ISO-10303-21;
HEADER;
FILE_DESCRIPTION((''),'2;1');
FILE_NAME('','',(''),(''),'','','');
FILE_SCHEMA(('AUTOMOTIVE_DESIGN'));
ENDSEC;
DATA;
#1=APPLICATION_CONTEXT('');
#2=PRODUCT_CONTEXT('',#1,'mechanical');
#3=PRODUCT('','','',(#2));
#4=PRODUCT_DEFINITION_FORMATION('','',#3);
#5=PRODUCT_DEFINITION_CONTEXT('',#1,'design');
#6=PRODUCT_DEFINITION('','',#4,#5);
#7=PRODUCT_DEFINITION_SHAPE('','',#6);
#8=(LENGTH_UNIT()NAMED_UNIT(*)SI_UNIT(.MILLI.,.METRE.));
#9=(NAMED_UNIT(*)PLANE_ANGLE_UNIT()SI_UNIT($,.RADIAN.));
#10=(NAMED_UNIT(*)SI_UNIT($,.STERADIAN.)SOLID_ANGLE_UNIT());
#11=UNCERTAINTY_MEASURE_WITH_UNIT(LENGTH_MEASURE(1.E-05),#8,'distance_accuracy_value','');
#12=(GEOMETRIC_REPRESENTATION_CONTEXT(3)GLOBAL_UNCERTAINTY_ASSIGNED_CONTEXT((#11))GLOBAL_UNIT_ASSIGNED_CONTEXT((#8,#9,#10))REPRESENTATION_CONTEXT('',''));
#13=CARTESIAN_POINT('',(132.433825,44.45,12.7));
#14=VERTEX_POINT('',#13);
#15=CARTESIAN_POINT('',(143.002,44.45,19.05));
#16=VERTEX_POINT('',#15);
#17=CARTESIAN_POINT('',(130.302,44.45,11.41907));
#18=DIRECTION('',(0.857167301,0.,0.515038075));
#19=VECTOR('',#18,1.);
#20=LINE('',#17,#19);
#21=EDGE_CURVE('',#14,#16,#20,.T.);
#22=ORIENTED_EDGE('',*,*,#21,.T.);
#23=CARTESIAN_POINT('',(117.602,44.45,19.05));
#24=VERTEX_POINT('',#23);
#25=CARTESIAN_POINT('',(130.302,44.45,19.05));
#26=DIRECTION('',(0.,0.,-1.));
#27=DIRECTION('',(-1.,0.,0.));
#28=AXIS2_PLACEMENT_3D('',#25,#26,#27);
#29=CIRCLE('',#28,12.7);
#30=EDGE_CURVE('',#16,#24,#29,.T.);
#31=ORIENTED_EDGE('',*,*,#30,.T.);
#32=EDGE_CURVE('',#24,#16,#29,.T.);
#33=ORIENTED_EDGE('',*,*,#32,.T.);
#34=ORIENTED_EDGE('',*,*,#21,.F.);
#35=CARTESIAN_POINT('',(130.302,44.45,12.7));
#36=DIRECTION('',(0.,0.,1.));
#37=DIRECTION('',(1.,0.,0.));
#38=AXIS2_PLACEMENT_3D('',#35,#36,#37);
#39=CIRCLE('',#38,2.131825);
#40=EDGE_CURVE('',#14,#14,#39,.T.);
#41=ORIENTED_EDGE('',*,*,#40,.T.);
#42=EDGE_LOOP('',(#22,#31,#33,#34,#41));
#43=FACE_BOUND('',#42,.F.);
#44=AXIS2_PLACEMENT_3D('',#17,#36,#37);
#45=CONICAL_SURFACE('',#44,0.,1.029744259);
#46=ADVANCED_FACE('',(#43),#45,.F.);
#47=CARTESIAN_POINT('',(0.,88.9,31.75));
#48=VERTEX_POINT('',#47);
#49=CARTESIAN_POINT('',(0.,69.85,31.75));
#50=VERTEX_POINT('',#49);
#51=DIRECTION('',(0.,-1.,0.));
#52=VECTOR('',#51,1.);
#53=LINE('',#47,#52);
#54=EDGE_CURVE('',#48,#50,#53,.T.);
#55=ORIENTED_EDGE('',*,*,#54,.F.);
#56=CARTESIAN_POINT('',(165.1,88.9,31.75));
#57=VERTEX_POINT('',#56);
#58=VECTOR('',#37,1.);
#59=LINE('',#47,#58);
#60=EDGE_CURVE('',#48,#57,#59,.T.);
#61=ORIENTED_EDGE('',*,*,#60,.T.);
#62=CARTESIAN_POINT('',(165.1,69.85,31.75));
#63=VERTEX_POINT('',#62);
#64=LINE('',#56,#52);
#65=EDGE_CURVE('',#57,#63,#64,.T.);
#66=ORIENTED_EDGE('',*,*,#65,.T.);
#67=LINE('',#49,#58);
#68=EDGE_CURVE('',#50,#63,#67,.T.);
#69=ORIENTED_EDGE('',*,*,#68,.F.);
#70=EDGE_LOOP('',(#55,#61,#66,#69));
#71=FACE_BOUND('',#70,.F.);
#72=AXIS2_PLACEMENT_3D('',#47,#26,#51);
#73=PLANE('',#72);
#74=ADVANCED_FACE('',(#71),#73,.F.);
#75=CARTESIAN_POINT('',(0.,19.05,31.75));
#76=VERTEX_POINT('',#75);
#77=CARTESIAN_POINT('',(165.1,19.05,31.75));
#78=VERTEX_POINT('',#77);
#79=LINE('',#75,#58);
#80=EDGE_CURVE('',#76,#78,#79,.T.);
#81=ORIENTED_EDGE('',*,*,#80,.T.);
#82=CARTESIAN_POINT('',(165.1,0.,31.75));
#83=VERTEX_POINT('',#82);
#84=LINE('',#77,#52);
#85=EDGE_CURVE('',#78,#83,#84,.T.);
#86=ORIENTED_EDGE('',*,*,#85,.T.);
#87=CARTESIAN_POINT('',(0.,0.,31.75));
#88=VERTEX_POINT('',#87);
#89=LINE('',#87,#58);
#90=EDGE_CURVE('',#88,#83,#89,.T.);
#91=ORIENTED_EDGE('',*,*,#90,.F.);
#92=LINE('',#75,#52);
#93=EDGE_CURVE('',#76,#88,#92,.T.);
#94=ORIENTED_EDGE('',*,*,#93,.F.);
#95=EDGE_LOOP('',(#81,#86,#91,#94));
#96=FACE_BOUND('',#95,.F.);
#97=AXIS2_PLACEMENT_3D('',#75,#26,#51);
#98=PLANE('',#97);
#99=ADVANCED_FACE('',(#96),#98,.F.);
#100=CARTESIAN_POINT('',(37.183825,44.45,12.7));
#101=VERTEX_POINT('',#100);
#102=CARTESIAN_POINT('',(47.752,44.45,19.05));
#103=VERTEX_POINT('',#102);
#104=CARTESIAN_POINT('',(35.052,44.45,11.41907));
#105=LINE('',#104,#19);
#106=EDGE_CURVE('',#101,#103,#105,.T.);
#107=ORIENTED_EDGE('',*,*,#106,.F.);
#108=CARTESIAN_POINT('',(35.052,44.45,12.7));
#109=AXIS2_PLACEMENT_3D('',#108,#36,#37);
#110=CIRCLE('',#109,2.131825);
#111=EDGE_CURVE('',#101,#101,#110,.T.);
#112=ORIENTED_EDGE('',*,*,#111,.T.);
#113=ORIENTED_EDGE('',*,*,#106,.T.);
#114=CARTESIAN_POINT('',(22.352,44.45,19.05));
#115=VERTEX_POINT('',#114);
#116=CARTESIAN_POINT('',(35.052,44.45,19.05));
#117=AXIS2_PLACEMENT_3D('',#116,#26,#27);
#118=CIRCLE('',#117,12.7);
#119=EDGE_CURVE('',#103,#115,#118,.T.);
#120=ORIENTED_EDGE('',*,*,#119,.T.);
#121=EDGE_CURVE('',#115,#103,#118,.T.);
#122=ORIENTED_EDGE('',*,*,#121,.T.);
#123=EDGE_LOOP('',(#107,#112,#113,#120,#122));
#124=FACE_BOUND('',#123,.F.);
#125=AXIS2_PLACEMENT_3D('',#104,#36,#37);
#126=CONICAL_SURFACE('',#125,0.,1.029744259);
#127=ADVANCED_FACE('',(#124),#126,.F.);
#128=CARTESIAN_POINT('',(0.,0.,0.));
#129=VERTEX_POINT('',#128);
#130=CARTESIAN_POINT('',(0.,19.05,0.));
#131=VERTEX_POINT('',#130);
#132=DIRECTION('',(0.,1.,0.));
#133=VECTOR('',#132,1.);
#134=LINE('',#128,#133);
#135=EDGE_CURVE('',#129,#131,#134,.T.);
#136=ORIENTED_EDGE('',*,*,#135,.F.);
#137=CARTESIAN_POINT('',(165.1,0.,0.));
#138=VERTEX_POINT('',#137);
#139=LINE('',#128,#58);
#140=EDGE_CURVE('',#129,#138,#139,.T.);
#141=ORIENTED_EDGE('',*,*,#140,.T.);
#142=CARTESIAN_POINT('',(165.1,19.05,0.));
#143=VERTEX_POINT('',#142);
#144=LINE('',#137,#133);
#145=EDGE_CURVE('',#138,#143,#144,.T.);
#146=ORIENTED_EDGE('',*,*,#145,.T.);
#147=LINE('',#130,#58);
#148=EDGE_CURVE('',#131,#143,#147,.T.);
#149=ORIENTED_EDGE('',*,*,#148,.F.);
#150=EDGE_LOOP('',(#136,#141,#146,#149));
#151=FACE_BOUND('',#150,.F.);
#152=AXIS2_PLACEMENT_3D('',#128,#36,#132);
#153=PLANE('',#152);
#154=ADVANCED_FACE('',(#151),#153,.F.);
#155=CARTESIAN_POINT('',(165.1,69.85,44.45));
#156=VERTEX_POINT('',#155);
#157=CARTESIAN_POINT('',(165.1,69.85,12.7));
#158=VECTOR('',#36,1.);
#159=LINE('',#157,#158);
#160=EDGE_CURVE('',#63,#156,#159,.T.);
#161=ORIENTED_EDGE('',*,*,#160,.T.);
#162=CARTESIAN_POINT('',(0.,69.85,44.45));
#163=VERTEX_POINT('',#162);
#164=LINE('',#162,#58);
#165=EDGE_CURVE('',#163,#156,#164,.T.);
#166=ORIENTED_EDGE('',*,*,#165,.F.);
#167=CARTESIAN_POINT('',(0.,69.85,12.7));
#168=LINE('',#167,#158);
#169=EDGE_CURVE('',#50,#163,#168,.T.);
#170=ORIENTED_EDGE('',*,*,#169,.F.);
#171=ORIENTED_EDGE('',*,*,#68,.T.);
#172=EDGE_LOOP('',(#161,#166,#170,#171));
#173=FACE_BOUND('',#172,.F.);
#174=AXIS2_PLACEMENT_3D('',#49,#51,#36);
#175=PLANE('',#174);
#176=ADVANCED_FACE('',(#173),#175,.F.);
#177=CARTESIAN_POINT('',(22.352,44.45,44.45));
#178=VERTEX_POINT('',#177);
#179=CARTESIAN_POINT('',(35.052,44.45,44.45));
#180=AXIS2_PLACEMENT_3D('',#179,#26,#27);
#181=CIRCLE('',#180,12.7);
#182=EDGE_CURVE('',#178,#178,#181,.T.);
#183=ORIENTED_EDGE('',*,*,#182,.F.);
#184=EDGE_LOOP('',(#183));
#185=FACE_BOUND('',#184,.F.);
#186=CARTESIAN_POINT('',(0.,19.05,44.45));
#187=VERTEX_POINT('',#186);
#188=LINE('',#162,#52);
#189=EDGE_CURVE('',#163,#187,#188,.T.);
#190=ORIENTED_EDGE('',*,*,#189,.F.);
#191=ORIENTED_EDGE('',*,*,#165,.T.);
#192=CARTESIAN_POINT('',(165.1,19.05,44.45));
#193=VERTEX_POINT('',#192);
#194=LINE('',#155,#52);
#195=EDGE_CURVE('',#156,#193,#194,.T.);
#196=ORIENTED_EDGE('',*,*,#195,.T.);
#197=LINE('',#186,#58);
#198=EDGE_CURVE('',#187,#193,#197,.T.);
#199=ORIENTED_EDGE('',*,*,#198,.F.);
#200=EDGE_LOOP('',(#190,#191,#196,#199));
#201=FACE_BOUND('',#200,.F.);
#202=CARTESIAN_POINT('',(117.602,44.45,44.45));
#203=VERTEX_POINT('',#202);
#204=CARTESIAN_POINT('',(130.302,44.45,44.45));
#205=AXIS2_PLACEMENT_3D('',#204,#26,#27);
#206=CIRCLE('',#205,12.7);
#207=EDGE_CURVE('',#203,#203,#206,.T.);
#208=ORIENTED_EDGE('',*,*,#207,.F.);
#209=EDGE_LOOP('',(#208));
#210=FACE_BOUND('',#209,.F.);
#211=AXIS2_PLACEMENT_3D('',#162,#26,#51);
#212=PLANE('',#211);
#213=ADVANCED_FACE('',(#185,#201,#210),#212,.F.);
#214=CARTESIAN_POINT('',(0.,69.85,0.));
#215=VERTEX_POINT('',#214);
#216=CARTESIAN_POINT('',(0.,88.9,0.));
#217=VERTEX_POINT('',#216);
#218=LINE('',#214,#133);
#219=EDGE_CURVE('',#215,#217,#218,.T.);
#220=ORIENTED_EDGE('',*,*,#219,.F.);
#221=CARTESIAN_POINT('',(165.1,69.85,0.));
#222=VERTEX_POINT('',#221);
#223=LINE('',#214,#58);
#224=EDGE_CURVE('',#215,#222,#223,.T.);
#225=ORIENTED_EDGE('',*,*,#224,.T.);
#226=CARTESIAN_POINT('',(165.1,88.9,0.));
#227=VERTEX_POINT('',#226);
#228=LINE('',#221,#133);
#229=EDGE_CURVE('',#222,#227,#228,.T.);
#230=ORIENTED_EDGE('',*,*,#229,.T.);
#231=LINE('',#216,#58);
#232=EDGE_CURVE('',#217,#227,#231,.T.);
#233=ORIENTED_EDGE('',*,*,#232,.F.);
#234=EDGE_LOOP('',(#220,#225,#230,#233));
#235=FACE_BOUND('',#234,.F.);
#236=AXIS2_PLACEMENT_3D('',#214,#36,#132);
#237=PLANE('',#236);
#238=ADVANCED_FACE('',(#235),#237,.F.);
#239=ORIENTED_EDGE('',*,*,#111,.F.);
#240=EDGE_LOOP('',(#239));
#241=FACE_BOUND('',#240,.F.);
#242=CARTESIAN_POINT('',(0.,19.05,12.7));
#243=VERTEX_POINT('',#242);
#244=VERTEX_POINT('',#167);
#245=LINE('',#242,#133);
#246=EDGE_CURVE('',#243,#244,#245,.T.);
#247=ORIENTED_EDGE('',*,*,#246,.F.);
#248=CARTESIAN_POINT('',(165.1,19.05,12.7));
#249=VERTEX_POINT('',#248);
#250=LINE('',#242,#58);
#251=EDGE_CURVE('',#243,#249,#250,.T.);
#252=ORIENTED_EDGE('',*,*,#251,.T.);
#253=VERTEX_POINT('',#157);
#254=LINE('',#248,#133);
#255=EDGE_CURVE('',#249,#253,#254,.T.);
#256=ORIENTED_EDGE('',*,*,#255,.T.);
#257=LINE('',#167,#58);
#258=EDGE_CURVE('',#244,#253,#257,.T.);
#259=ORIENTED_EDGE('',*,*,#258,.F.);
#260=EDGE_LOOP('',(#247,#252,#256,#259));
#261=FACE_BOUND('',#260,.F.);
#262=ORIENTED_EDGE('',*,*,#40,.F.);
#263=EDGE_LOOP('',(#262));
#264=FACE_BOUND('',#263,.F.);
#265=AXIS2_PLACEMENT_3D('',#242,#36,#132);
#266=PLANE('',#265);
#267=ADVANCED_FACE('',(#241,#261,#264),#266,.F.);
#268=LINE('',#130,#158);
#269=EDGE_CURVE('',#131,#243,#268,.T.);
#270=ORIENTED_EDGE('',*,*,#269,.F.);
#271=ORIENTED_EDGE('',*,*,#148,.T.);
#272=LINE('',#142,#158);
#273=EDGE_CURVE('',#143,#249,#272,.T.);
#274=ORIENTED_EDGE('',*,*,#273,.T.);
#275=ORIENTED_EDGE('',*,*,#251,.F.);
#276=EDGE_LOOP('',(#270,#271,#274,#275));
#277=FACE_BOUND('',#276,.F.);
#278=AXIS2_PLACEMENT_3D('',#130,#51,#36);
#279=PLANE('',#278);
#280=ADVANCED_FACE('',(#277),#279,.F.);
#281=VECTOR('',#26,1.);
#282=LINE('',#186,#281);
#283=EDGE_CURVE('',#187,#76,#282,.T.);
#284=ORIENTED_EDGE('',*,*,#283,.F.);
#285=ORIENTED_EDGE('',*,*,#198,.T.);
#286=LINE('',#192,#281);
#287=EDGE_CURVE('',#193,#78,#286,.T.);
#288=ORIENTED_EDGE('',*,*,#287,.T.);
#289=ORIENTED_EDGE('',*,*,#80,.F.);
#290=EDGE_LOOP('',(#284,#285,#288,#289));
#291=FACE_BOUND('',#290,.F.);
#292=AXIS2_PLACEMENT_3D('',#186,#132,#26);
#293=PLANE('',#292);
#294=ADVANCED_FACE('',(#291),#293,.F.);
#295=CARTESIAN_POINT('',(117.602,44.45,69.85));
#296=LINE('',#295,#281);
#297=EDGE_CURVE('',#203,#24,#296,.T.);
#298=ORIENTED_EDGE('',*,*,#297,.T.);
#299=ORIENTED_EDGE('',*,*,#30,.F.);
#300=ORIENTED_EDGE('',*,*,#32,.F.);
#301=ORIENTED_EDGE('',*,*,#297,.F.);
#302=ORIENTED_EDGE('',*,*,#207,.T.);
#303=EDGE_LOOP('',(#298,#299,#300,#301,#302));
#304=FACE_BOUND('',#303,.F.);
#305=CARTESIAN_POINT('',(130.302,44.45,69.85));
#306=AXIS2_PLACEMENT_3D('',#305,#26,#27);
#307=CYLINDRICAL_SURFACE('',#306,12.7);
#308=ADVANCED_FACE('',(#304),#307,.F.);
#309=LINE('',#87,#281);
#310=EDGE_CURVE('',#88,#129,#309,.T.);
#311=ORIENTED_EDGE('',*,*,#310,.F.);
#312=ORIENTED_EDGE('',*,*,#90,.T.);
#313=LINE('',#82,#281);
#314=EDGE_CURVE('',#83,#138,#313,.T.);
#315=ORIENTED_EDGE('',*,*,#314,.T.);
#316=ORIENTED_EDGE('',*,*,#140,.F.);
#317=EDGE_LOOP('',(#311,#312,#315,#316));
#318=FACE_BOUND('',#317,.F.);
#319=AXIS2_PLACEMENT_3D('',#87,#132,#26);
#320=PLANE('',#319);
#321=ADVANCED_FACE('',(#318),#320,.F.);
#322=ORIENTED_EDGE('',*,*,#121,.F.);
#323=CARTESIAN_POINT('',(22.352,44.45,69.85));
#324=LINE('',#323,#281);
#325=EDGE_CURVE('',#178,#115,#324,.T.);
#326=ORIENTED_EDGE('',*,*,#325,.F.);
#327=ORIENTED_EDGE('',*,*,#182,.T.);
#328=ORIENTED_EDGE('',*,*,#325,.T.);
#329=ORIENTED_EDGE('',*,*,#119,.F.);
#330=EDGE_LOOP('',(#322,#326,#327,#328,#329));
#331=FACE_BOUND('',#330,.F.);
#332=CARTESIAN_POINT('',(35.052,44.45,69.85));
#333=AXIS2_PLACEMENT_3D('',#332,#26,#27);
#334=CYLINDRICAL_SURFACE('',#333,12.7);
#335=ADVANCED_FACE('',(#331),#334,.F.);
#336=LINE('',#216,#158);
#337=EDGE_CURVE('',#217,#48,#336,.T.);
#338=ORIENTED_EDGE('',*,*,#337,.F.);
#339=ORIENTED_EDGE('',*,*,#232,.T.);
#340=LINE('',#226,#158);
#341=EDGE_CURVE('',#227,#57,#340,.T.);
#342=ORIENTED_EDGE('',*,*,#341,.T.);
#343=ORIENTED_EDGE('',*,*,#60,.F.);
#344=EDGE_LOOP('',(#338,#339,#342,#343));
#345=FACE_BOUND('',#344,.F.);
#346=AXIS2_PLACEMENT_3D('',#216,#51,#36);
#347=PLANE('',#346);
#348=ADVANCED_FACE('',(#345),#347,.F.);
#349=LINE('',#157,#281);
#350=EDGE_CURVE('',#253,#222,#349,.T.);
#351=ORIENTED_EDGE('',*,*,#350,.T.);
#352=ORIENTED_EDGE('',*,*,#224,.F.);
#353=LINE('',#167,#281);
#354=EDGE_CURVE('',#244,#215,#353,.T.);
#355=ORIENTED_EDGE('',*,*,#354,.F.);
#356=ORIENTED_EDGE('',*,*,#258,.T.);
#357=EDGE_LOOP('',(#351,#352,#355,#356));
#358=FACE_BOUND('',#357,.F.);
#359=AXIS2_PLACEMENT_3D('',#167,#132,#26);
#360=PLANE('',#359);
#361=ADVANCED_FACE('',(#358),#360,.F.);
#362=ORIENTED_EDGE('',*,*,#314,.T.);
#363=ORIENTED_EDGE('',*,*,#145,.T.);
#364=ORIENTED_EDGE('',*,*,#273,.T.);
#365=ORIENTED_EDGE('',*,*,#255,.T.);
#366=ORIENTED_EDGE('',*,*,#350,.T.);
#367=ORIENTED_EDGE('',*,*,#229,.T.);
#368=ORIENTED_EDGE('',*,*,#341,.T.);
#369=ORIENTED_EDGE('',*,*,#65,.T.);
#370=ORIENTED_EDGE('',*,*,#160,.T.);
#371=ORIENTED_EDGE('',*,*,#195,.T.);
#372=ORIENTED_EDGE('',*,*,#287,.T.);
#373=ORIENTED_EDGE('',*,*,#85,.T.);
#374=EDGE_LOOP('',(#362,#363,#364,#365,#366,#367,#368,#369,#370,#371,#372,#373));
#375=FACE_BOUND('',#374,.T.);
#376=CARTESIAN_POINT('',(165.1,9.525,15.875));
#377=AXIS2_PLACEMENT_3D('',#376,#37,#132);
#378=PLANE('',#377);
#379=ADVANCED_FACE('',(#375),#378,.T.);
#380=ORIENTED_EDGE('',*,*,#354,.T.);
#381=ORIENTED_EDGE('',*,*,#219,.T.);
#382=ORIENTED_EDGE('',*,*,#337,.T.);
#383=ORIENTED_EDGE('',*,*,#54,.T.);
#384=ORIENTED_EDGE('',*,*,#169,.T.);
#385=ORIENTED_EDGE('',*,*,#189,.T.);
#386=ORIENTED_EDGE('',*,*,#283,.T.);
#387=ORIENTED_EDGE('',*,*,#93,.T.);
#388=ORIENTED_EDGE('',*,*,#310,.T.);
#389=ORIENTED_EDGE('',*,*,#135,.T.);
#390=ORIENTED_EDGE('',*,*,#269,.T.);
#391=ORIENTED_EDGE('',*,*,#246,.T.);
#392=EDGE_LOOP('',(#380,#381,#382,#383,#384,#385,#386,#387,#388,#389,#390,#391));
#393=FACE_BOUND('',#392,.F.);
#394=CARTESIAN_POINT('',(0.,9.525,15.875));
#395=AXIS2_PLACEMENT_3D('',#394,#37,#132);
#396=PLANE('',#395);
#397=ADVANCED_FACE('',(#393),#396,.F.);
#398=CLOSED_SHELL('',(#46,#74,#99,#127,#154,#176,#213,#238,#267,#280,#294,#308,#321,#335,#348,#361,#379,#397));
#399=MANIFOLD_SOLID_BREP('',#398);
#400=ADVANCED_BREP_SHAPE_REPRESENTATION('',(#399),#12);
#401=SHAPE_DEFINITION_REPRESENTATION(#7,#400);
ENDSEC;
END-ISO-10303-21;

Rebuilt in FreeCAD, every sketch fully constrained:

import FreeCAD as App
import Part
import Sketcher
from FreeCAD import Vector
Q = App.Units.Quantity


def add_polygon(sketch, points):
    """Adds a closed chain of lines whose ends are joined by coincident constraints."""
    first, n = sketch.GeometryCount, len(points)
    for a, b in zip(points, points[1:] + points[:1]):
        sketch.addGeometry(Part.LineSegment(App.Vector(*a, 0), App.Vector(*b, 0)), False)
    for i in range(n):
        sketch.addConstraint(Sketcher.Constraint("Coincident", first + i, 2, first + (i + 1) % n, 1))

doc = App.newDocument("Part")
body = doc.addObject("PartDesign::Body", "Body")

# Sketch on YZ plane
sketch1 = doc.addObject("Sketcher::SketchObject", "Sketch")
body.addObject(sketch1)
sketch1.AttachmentSupport = (doc.YZ_Plane, [""])
sketch1.MapMode = "FlatFace"
add_polygon(sketch1, [(0, 32), (0, 0), (19, 0), (19, 13), (70, 13), (70, 0), (89, 0), (89, 32), (70, 32), (70, 44), (19, 44), (19, 32)])  # lines 0-11
sketch1.addConstraint([
    Sketcher.Constraint("Vertical", 0),
    Sketcher.Constraint("Horizontal", 1),
    Sketcher.Constraint("Vertical", 2),
    Sketcher.Constraint("Horizontal", 3),
    Sketcher.Constraint("Vertical", 4),
    Sketcher.Constraint("Horizontal", 5),
    Sketcher.Constraint("Vertical", 6),
    Sketcher.Constraint("Horizontal", 7),
    Sketcher.Constraint("Vertical", 8),
    Sketcher.Constraint("Horizontal", 9),
    Sketcher.Constraint("Vertical", 10),
    Sketcher.Constraint("Horizontal", 11),
    Sketcher.Constraint("Coincident", 0, 2, -1, 1),
    Sketcher.Constraint("PointOnObject", 4, 2, -1),
    Sketcher.Constraint("Horizontal", 7, 2, 10, 2),
    Sketcher.Constraint("Vertical", 4, 2, 7, 2),
    Sketcher.Constraint("Vertical", 2, 2, 9, 2),
    Sketcher.Constraint("Equal", 1, 5),
    Sketcher.Constraint("Equal", 4, 8),
    Sketcher.Constraint("DistanceX", 3, 1, 3, 2, Q("2 in")),
    Sketcher.Constraint("DistanceY", 2, 1, 2, 2, Q("0.5 in")),
    Sketcher.Constraint("DistanceX", 1, 1, 1, 2, Q("0.75 in")),
    Sketcher.Constraint("DistanceY", 0, 2, 0, 1, Q("1.25 in")),
])
pad1 = doc.addObject("PartDesign::Pad", "Pad")
body.addObject(pad1)
pad1.Profile = sketch1
pad1.Length = Q("6.5 in")

# Sketch on XY plane
sketch2 = doc.addObject("Sketcher::SketchObject", "Sketch001")
body.addObject(sketch2)
sketch2.AttachmentSupport = (doc.XY_Plane, [""])
sketch2.MapMode = "FlatFace"
sketch2.AttachmentOffset = App.Placement(Vector(0, 0, 1.75 * 25.4), App.Rotation())
sketch2.addGeometry([
    Part.Circle(Vector(130, 44, 0), Vector(0, 0, 1), 13),
    Part.Circle(Vector(35, 44, 0), Vector(0, 0, 1), 13),
], False)
sketch2.addConstraint([
    Sketcher.Constraint("Equal", 0, 1),
    Sketcher.Constraint("Horizontal", 0, 3, 1, 3),
    Sketcher.Constraint("Diameter", 0, Q("1 in")),
    Sketcher.Constraint("DistanceX", -1, 1, 0, 3, Q("5.13 in")),
    Sketcher.Constraint("DistanceY", -1, 1, 0, 3, Q("1.75 in")),
    Sketcher.Constraint("DistanceX", -1, 1, 1, 3, Q("1.38 in")),
])
doc.recompute()
hole = doc.addObject("PartDesign::Hole", "Hole")
body.addObject(hole)
hole.Profile = sketch2
hole.ThreadType = "None"
hole.Diameter = Q("1 in")
hole.DepthType = "Dimension"
hole.Depth = Q("1 in")
hole.DrillPoint = "Angled"
hole.DrillPointAngle = 118

doc.recompute()
